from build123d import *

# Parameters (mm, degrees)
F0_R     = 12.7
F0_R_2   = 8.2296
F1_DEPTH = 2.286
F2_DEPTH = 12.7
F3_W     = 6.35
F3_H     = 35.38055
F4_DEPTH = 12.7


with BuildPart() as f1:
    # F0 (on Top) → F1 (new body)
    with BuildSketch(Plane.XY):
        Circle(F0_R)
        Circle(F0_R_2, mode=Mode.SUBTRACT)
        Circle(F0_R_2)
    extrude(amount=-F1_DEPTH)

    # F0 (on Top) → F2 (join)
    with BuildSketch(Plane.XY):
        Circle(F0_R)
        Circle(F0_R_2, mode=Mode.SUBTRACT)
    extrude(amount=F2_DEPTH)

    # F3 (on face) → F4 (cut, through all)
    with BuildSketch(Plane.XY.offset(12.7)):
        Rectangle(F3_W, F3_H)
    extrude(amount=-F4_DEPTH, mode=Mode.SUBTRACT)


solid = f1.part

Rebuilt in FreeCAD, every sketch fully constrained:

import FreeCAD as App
import Part
import Sketcher

V = App.Vector
Q = App.Units.Quantity


def add_polygon(sketch, points):
    """Adds a closed chain of lines whose ends are joined by coincident constraints."""
    first, n = sketch.GeometryCount, len(points)
    for a, b in zip(points, points[1:] + points[:1]):
        sketch.addGeometry(Part.LineSegment(App.Vector(*a, 0), App.Vector(*b, 0)), False)
    for i in range(n):
        sketch.addConstraint(Sketcher.Constraint("Coincident", first + i, 2, first + (i + 1) % n, 1))

doc = App.newDocument("Part")
body = doc.addObject("PartDesign::Body", "Body")

# Sketch on XY plane
sketch1 = body.newObject("Sketcher::SketchObject", "Sketch")
sketch1.AttachmentSupport = (doc.getObject("XY_Plane"), [""])
sketch1.MapMode = "FlatFace"
sketch1.addGeometry(Part.Circle(V(0, 0, 0), V(0, 0, 1), 12.7), False)
sketch1.addConstraint([
    Sketcher.Constraint("Coincident", 0, 3, -1, 1),
    Sketcher.Constraint("Diameter", 0, Q("1 in")),
])
pad1 = body.newObject("PartDesign::Pad", "Pad")
pad1.Profile = sketch1
pad1.Length = Q("0.09 in")
pad1.Reversed = True

# Sketch on XY plane
sketch2 = body.newObject("Sketcher::SketchObject", "Sketch001")
sketch2.AttachmentSupport = (doc.getObject("XY_Plane"), [""])
sketch2.MapMode = "FlatFace"
sketch2.addGeometry([
    Part.Circle(V(0, 0, 0), V(0, 0, 1), 12.7),
    Part.Circle(V(0, 0, 0), V(0, 0, 1), 8.2296),
], False)
sketch2.addConstraint([
    Sketcher.Constraint("Coincident", 0, 3, -1, 1),
    Sketcher.Constraint("Coincident", 1, 3, -1, 1),
    Sketcher.Constraint("Diameter", 0, Q("1 in")),
    Sketcher.Constraint("Diameter", 1, Q("0.648 in")),
])
pad2 = body.newObject("PartDesign::Pad", "Pad001")
pad2.Profile = sketch2
pad2.Length = Q("0.5 in")

# Sketch on XY plane
sketch3 = body.newObject("Sketcher::SketchObject", "Sketch002")
sketch3.AttachmentSupport = (doc.getObject("XY_Plane"), [""])
sketch3.MapMode = "FlatFace"
sketch3.AttachmentOffset = App.Placement(V(0, 0, 0.5 * 25.4), App.Rotation())
add_polygon(sketch3, [(-3.175, 17.690275), (-3.175, -17.690275), (3.175, -17.690275), (3.175, 17.690275)])  # lines 0-3
sketch3.addConstraint([
    Sketcher.Constraint("Vertical", 0),
    Sketcher.Constraint("Horizontal", 1),
    Sketcher.Constraint("Vertical", 2),
    Sketcher.Constraint("Horizontal", 3),
    Sketcher.Constraint("Symmetric", 0, 2, 2, 2, -1, 1),
    Sketcher.Constraint("DistanceX", 1, 1, 1, 2, Q("0.25 in")),
    Sketcher.Constraint("DistanceY", 0, 2, 0, 1, Q("35.38055 mm")),
])
pocket1 = body.newObject("PartDesign::Pocket", "Pocket")
pocket1.Profile = sketch3
pocket1.Length = Q("0.5 in")

doc.recompute()
